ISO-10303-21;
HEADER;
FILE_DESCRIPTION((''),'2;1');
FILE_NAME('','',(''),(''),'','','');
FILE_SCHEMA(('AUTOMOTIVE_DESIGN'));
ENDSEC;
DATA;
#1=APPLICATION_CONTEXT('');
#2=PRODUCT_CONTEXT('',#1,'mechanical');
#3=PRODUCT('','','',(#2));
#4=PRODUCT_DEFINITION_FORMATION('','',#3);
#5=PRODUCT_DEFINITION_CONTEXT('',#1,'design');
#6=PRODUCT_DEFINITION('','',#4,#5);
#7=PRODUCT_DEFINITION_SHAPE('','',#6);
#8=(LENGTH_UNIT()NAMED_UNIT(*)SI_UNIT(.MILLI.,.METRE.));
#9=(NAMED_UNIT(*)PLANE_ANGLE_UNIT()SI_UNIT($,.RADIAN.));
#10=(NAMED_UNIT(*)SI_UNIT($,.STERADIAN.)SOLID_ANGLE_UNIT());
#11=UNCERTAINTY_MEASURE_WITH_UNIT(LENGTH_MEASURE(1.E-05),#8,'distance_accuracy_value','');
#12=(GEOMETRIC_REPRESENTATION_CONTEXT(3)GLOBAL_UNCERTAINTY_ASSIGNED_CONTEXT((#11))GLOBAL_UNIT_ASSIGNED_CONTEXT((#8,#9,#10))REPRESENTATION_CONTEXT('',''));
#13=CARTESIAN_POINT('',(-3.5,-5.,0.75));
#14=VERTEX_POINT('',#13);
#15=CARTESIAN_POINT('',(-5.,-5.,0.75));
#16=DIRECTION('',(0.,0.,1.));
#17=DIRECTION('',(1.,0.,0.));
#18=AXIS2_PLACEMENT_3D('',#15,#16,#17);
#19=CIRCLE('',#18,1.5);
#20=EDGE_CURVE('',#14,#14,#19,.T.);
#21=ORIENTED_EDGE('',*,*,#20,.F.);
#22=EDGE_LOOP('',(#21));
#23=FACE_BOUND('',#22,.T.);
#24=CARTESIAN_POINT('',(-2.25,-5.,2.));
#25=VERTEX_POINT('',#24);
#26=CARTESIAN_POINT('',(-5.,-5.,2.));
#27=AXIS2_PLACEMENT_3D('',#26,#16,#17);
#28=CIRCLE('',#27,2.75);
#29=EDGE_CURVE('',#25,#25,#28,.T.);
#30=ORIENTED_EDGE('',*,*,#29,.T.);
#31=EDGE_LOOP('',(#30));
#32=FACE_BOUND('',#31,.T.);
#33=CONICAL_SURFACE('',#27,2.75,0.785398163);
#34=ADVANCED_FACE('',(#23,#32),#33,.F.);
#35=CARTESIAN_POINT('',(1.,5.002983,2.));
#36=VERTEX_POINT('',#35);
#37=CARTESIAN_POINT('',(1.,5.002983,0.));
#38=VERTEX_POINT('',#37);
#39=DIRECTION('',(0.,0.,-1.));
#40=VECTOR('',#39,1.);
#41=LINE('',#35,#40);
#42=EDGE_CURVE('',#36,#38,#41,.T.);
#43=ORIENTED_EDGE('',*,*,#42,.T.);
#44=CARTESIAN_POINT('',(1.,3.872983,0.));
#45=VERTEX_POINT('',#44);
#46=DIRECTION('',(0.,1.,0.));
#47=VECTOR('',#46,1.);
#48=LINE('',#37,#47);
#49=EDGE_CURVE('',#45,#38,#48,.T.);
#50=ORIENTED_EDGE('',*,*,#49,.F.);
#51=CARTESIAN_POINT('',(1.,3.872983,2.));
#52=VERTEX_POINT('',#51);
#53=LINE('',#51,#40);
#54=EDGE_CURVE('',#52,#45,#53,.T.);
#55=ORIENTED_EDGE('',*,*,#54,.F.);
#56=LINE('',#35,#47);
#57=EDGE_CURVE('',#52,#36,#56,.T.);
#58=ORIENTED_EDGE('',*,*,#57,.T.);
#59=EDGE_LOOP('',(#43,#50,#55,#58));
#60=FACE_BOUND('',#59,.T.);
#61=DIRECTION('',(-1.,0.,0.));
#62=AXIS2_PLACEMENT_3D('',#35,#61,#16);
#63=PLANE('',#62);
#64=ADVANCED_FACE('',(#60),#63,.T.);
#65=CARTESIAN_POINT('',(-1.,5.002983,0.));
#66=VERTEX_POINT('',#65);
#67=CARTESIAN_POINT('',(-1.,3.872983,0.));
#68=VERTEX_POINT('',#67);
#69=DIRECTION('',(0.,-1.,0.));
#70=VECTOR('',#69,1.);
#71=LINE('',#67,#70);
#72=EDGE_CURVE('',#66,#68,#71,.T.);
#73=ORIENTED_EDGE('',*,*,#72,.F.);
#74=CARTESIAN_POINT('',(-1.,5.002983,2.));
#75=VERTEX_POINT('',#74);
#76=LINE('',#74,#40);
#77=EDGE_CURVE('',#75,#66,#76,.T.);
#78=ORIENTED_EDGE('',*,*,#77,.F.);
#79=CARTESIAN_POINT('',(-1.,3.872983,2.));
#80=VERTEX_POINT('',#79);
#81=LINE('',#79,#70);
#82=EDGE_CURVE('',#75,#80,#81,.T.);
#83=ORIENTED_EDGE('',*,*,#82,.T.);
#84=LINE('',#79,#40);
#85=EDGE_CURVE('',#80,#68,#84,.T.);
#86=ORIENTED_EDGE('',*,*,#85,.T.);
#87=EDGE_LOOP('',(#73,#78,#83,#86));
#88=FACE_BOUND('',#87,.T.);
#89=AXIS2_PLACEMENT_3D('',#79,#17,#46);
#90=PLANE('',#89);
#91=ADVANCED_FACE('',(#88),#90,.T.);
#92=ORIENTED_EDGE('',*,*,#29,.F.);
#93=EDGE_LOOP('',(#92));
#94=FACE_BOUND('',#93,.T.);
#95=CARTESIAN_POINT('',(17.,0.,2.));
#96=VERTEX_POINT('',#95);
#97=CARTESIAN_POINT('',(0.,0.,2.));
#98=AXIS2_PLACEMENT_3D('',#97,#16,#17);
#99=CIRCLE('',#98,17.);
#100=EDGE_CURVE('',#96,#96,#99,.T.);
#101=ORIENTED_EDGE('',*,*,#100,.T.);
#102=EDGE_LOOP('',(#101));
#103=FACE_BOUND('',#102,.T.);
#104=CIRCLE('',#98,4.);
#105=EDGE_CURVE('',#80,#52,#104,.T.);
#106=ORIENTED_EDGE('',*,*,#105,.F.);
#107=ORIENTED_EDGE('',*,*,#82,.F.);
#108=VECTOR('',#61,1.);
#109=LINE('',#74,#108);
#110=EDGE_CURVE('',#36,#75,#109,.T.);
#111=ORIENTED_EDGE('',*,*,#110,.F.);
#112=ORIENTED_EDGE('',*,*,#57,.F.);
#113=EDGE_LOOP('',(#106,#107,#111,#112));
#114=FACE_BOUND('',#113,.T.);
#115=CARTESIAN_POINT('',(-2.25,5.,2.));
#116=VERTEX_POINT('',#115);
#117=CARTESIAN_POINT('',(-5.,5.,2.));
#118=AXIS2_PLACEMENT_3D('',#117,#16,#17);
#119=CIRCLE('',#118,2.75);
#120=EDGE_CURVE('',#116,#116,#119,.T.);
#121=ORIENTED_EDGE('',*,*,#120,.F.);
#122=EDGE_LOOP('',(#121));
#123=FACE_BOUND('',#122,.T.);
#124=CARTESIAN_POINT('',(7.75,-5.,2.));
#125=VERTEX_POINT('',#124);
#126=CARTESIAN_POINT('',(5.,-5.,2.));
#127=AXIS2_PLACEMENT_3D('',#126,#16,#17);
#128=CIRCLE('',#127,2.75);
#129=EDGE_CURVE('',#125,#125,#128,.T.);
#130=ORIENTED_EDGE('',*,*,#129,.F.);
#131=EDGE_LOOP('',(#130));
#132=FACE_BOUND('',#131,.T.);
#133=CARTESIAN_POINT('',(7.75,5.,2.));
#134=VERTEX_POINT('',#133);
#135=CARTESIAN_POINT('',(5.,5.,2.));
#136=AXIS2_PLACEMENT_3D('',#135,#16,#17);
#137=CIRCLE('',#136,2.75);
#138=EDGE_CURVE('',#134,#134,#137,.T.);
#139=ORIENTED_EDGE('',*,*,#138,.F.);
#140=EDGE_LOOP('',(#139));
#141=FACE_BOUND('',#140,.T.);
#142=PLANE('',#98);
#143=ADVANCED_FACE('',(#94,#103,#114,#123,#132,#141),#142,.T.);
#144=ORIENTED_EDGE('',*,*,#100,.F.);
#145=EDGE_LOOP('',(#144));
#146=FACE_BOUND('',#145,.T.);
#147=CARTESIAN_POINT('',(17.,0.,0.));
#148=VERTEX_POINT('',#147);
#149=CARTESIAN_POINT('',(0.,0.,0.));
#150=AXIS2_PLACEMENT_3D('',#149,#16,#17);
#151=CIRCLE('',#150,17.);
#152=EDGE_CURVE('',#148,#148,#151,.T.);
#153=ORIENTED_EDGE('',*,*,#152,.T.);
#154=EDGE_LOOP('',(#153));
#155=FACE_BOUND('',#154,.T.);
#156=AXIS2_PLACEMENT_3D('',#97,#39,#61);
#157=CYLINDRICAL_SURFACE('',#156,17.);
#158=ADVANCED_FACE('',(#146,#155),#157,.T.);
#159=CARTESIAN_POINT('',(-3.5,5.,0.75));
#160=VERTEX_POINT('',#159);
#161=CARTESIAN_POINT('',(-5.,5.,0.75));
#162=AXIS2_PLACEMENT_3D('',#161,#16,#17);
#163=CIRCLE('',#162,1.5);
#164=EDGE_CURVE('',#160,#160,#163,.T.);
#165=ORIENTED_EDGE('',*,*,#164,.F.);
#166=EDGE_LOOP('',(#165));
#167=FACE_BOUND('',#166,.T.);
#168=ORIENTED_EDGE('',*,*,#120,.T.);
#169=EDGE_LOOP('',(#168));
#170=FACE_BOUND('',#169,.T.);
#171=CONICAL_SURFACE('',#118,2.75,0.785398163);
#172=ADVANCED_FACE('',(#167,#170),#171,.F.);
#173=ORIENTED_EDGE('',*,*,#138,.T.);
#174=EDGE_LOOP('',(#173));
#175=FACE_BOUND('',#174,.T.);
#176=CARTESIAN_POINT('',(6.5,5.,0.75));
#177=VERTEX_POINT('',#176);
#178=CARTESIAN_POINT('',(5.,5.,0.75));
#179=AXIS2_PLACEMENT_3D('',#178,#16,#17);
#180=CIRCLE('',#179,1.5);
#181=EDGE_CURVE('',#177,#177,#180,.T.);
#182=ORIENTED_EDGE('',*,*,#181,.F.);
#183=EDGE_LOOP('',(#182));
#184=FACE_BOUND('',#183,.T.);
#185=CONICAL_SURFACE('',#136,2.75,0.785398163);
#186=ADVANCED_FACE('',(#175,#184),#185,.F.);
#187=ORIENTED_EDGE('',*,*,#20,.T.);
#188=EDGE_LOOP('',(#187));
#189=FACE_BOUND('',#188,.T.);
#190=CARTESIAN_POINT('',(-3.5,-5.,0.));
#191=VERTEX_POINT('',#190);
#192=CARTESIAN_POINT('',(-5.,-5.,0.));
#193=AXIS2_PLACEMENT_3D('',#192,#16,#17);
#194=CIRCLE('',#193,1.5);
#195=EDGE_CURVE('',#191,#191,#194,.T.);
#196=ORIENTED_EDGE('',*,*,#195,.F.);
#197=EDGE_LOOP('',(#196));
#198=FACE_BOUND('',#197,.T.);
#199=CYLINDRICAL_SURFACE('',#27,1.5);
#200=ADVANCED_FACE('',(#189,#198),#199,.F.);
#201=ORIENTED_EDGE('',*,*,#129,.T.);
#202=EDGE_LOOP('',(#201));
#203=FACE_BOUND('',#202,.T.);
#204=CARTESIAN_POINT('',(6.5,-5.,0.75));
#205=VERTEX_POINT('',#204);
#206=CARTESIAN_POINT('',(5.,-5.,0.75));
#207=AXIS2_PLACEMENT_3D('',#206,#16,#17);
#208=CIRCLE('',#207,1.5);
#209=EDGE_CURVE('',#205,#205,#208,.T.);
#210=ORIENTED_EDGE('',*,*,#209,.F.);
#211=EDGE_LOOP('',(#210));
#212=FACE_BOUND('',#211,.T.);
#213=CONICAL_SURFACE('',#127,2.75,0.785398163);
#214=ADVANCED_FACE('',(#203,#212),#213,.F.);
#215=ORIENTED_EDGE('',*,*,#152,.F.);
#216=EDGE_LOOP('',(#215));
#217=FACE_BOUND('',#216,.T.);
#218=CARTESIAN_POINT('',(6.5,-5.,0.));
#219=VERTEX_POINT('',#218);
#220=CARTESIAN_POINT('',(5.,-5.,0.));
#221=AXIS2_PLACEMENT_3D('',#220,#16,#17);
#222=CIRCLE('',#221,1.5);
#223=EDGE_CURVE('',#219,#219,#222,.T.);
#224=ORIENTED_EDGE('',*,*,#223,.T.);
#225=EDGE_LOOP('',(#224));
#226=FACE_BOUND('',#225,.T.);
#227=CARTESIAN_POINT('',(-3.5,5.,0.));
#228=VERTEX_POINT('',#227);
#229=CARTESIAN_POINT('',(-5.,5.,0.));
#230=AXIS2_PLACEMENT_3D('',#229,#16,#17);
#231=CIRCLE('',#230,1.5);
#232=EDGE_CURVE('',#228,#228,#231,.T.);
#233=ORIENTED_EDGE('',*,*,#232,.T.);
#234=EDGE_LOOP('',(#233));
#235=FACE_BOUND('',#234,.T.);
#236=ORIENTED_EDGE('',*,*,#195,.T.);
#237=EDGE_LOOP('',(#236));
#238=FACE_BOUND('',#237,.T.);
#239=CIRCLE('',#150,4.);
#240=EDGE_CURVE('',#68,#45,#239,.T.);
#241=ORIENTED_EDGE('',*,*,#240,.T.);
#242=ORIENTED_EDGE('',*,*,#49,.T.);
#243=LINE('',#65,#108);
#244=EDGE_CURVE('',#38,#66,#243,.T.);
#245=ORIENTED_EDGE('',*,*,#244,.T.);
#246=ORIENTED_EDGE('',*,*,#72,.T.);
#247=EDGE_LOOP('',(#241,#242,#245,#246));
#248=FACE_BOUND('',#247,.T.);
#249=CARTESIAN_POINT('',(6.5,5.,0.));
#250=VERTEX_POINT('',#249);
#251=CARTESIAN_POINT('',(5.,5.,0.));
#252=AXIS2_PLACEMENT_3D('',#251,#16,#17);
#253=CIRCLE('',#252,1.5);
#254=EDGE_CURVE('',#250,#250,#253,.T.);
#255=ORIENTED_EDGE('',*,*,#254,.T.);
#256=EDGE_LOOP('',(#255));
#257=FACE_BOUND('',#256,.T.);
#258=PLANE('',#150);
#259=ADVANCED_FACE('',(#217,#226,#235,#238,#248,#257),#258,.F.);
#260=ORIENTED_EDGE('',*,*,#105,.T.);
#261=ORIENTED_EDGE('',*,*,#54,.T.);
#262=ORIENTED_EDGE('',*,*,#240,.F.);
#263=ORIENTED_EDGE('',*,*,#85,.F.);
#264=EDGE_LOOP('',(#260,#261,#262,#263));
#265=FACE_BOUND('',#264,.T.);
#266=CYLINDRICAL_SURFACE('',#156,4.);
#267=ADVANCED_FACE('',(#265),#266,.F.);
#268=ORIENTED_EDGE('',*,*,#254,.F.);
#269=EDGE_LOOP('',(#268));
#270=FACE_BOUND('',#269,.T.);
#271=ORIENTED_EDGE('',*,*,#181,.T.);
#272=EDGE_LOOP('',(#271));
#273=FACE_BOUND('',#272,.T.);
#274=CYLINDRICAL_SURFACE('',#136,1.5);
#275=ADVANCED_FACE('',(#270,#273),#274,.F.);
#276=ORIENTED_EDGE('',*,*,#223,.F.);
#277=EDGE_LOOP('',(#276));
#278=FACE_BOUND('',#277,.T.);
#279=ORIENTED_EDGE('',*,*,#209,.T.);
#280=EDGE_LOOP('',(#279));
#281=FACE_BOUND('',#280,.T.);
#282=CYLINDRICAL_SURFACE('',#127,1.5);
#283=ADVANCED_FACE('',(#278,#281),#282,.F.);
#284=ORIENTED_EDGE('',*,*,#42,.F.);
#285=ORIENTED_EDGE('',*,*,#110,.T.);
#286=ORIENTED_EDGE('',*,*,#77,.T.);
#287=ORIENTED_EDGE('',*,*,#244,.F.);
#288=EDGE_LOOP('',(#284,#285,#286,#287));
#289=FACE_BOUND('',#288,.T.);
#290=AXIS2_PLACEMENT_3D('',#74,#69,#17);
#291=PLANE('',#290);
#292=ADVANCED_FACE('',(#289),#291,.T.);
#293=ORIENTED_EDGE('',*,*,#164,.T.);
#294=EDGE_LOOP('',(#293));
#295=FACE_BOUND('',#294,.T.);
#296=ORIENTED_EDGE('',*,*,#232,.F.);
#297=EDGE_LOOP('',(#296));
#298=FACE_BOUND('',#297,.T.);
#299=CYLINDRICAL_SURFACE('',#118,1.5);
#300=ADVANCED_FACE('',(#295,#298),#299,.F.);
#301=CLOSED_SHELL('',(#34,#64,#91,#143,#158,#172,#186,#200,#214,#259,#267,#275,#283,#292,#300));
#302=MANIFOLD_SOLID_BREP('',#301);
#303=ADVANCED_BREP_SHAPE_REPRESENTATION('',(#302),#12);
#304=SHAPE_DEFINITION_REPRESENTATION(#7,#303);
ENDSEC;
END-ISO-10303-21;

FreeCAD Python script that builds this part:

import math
import FreeCAD as App
import Part
import Sketcher
from FreeCAD import Vector
Q = App.Units.Quantity


def add_polygon(sketch, points):
    """Adds a closed chain of lines whose ends are joined by coincident constraints."""
    first, n = sketch.GeometryCount, len(points)
    for a, b in zip(points, points[1:] + points[:1]):
        sketch.addGeometry(Part.LineSegment(App.Vector(*a, 0), App.Vector(*b, 0)), False)
    for i in range(n):
        sketch.addConstraint(Sketcher.Constraint("Coincident", first + i, 2, first + (i + 1) % n, 1))

doc = App.newDocument("Part")
body = doc.addObject("PartDesign::Body", "Body")

sketch1 = doc.addObject("Sketcher::SketchObject", "Sketch")
body.addObject(sketch1)
sketch1.AttachmentSupport = (doc.XY_Plane, [""])
sketch1.MapMode = "FlatFace"
sketch1.addGeometry([
    Part.Circle(Vector(0, 0, 0), Vector(0, 0, 1), 17),
    Part.ArcOfCircle(Part.Circle(Vector(0, 0, 0), Vector(0, 0, 1), 4), math.radians(104), math.radians(436)),
    Part.LineSegment(Vector(-1, 3.9, 0), Vector(-1, 5, 0)),
    Part.LineSegment(Vector(-1, 5, 0), Vector(1, 5, 0)),
    Part.LineSegment(Vector(1, 5, 0), Vector(1, 3.9, 0)),
], False)
sketch1.addConstraint([
    Sketcher.Constraint("Coincident", 1, 1, 2, 1),
    Sketcher.Constraint("Coincident", 2, 2, 3, 1),
    Sketcher.Constraint("Coincident", 3, 2, 4, 1),
    Sketcher.Constraint("Coincident", 4, 2, 1, 2),
    Sketcher.Constraint("Vertical", 2),
    Sketcher.Constraint("Horizontal", 3),
    Sketcher.Constraint("Vertical", 4),
    Sketcher.Constraint("Coincident", 0, 3, -1, 1),
    Sketcher.Constraint("Coincident", 1, 3, -1, 1),
    Sketcher.Constraint("Horizontal", 1, 1, 4, 2),
    Sketcher.Constraint("Diameter", 0, Q("34 mm")),
    Sketcher.Constraint("Radius", 1, Q("4 mm")),
    Sketcher.Constraint("DistanceX", 3, 1, 3, 2, Q("2 mm")),
    Sketcher.Constraint("DistanceY", 2, 1, 2, 2, Q("1.13 mm")),
])
pad1 = doc.addObject("PartDesign::Pad", "Pad")
body.addObject(pad1)
pad1.Profile = sketch1
pad1.Length = 2

sketch2 = doc.addObject("Sketcher::SketchObject", "Sketch001")
body.addObject(sketch2)
sketch2.AttachmentSupport = (doc.YZ_Plane, [""])
sketch2.MapMode = "FlatFace"
sketch2.AttachmentOffset = App.Placement(Vector(0, 0, 5), App.Rotation())
add_polygon(sketch2, [(5, 0), (5, 2), (2.2, 2), (3.5, 0.8), (3.5, 0)])
sketch2.addGeometry(Part.LineSegment(Vector(5, 2, 0), Vector(5, 0, 0)), True)
sketch2.addConstraint([
    Sketcher.Constraint("Vertical", 0),
    Sketcher.Constraint("Horizontal", 1),
    Sketcher.Constraint("Vertical", 3),
    Sketcher.Constraint("Horizontal", 4),
    Sketcher.Constraint("Vertical", 5),
    Sketcher.Constraint("Coincident", 5, 1, 0, 2),
    Sketcher.Constraint("PointOnObject", 3, 2, -1),
    Sketcher.Constraint("PointOnObject", 5, 2, -1),
    Sketcher.Constraint("DistanceY", 0, 1, 0, 2, Q("2 mm")),
    Sketcher.Constraint("Angle", 2, Q("-45 deg")),
    Sketcher.Constraint("DistanceX", 4, 1, 4, 2, Q("1.5 mm")),
    Sketcher.Constraint("DistanceX", -1, 1, 0, 2, Q("5 mm")),
    Sketcher.Constraint("DistanceX", 1, 2, 1, 1, Q("2.75 mm")),
])
groove = doc.addObject("PartDesign::Groove", "Groove")
body.addObject(groove)
groove.Profile = sketch2
groove.ReferenceAxis = (sketch2, ["Axis0"])
groove.Angle = 360
doc.recompute()

polarpattern = doc.addObject("PartDesign::PolarPattern", "PolarPattern")
body.addObject(polarpattern)
polarpattern.Originals = [groove]
polarpattern.Axis = (doc.Z_Axis, [""])
polarpattern.Angle = 360
polarpattern.Occurrences = 4
body.Tip = polarpattern

doc.recompute()
